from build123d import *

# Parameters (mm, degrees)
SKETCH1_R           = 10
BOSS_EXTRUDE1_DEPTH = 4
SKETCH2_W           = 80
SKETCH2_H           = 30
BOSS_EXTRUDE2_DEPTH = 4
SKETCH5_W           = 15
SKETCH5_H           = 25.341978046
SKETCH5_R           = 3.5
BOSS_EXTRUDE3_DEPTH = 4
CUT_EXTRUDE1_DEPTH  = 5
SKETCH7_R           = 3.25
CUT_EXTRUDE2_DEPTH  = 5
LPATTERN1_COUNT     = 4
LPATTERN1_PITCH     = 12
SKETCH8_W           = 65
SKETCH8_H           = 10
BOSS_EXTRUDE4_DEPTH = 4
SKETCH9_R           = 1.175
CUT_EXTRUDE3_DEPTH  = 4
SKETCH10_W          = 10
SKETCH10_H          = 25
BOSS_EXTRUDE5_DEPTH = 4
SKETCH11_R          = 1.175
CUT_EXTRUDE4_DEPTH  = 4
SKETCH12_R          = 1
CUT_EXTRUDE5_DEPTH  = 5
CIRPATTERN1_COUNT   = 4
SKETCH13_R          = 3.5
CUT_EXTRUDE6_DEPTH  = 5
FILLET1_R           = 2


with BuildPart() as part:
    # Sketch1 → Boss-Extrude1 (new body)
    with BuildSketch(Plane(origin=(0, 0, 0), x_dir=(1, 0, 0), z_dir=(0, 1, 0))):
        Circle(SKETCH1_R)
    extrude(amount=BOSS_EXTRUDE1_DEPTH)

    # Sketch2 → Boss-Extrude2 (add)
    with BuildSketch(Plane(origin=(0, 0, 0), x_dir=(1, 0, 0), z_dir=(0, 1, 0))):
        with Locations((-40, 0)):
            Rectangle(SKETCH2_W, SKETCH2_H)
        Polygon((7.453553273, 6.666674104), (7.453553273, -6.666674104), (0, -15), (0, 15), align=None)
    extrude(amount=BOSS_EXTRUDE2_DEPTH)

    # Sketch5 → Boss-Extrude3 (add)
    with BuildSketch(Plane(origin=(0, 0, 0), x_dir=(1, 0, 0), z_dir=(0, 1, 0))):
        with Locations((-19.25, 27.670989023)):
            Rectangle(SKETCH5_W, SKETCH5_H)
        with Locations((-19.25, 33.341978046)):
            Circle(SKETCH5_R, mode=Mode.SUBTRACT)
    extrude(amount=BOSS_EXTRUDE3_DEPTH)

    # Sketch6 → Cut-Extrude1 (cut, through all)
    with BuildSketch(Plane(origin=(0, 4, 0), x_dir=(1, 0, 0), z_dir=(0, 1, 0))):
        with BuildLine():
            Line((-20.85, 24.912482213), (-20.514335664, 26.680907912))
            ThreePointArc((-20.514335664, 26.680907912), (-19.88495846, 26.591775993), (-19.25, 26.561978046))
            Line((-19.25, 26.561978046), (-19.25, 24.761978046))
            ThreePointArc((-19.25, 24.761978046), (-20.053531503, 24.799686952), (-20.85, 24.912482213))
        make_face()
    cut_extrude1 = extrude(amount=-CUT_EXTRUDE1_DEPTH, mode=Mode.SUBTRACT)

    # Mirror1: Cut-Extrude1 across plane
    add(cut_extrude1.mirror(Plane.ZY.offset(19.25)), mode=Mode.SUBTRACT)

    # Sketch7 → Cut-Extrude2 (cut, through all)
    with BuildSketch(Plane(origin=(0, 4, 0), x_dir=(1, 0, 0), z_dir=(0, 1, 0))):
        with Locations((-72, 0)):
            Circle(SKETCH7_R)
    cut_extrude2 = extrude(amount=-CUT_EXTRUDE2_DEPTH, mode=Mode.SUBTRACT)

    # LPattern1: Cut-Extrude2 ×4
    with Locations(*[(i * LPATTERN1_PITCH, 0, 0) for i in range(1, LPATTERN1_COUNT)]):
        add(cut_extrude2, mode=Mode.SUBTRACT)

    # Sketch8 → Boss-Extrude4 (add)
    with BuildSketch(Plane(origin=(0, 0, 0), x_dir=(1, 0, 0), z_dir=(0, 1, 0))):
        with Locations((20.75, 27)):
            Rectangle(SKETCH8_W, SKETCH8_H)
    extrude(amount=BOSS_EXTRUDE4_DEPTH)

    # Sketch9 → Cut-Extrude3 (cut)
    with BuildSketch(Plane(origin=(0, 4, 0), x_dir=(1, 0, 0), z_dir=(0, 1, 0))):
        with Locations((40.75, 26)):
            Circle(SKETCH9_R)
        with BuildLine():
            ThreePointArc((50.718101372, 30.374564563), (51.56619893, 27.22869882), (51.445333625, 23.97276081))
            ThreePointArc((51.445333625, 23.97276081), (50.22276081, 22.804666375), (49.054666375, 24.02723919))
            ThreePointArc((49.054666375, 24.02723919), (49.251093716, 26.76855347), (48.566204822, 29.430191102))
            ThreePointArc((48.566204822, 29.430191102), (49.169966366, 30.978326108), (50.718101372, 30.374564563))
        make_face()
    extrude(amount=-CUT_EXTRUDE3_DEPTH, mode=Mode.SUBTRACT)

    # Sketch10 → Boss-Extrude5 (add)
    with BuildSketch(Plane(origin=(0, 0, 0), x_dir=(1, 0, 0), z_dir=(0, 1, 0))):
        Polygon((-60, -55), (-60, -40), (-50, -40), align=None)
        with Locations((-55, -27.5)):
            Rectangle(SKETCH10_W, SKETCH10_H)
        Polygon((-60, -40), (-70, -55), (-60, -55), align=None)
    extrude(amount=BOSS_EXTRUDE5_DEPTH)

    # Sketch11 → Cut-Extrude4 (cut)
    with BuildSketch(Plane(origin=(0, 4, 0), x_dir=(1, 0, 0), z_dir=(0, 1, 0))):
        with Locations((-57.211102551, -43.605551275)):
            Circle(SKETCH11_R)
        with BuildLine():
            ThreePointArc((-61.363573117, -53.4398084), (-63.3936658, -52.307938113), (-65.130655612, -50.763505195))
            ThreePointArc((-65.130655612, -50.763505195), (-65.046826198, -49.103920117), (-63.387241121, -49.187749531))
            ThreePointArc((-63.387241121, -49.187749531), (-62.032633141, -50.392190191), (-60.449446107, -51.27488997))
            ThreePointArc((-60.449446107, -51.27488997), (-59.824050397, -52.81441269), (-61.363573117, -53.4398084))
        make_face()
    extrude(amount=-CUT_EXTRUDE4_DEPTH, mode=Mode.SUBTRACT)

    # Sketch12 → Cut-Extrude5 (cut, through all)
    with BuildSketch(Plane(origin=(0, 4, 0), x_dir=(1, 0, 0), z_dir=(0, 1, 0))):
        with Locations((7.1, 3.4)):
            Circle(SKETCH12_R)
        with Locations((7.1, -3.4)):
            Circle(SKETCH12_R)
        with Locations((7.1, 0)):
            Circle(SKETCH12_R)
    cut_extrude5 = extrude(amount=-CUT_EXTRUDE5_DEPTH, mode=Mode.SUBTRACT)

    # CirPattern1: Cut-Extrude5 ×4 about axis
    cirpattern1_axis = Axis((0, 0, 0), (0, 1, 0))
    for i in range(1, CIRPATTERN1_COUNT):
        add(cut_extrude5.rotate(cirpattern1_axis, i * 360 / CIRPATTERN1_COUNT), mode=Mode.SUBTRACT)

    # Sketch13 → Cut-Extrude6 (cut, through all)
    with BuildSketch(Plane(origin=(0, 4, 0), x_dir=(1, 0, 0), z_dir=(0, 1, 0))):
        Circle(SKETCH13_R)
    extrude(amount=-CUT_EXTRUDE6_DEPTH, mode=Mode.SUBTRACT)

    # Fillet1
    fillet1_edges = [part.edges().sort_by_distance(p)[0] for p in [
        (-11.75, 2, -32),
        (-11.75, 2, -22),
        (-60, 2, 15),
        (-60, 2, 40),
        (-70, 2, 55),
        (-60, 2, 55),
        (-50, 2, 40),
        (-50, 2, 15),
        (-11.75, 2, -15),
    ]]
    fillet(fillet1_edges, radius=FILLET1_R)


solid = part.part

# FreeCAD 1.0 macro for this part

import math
import FreeCAD as App
import Part
import Sketcher
Q = App.Units.Quantity


def edges_at(feature, points):
    """Names of the edges that pass closest to the given points."""
    edges = feature.Shape.Edges
    near = lambda p: min(range(len(edges)), key=lambda i: edges[i].distToShape(Part.Vertex(*p))[0])
    return sorted({f"Edge{near(p) + 1}" for p in points})

doc = App.newDocument("Part")
params = doc.addObject("Spreadsheet::Sheet", "Params")
for row, (alias, value) in enumerate([
    ("sketch1_diameter", "20 mm"),
    ("pad1_length", "4 mm"),
    ("sketch2_width", "80 mm"),
    ("sketch2_height", "30 mm"),
    ("pad2_length", "4 mm"),
    ("sketch3_diameter", "7 mm"),
    ("sketch3_width", "15 mm"),
    ("pad3_length", "4 mm"),
    ("sketch4_radius", "8.58 mm"),
    ("sketch4_radius2", "6.78 mm"),
    ("sketch5_diameter", "6.5 mm"),
    ("linearpattern_pitch", "12 mm"),
    ("sketch6_width", "65 mm"),
    ("sketch6_height", "10 mm"),
    ("pad4_length", "4 mm"),
    ("sketch7_diameter", "2.35 mm"),
    ("pocket3_length", "4 mm"),
    ("sketch8_width", "10 mm"),
    ("sketch8_height", "25 mm"),
    ("pad5_length", "4 mm"),
    ("sketch9_diameter", "2.35 mm"),
    ("pocket4_length", "4 mm"),
    ("sketch10_diameter", "2 mm"),
    ("sketch11_diameter", "7 mm"),
    ("fillet_radius", "2 mm"),
], start=1):
    params.set(f"A{row}", alias)
    params.set(f"B{row}", "=" + value)
    params.setAlias(f"B{row}", alias)

body = doc.addObject("PartDesign::Body", "Body")

# Sketch on XZ plane
sketch1 = body.newObject("Sketcher::SketchObject", "Sketch")
sketch1.AttachmentSupport = (doc.getObject("XZ_Plane"), [""])
sketch1.MapMode = "FlatFace"
sketch1.addGeometry(Part.Circle(App.Vector(0, 0, 0), App.Vector(0, 0, 1), 10), False)
sketch1.addConstraint([
    Sketcher.Constraint("Coincident", 0, 3, -1, 1),
    Sketcher.Constraint("Diameter", 0, Q("20 mm")),
])
sketch1.setExpression("Constraints[1]", "Params.sketch1_diameter")
pad1 = body.newObject("PartDesign::Pad", "Pad")
pad1.Profile = sketch1
pad1.setExpression("Length", "Params.pad1_length")
pad1.Reversed = True

# Sketch on XZ plane
sketch2 = body.newObject("Sketcher::SketchObject", "Sketch001")
sketch2.AttachmentSupport = (doc.getObject("XZ_Plane"), [""])
sketch2.MapMode = "FlatFace"
sketch2.addGeometry([
    Part.LineSegment(App.Vector(-80, -15, 0), App.Vector(-80, 15, 0)),  # 0
    Part.LineSegment(App.Vector(-80, 15, 0), App.Vector(0, 15, 0)),  # 1
    Part.LineSegment(App.Vector(0, 15, 0), App.Vector(7, 7, 0)),  # 2
    Part.LineSegment(App.Vector(7, 7, 0), App.Vector(7, -7, 0)),  # 3
    Part.LineSegment(App.Vector(7, -7, 0), App.Vector(0, -15, 0)),  # 4
    Part.LineSegment(App.Vector(0, -15, 0), App.Vector(-80, -15, 0)),  # 5
], False)
sketch2.addConstraint([
    Sketcher.Constraint("Coincident", 0, 2, 1, 1),
    Sketcher.Constraint("Coincident", 1, 2, 2, 1),
    Sketcher.Constraint("Coincident", 2, 2, 3, 1),
    Sketcher.Constraint("Coincident", 3, 2, 4, 1),
    Sketcher.Constraint("Coincident", 4, 2, 5, 1),
    Sketcher.Constraint("Coincident", 5, 2, 0, 1),
    Sketcher.Constraint("Vertical", 0),
    Sketcher.Constraint("Horizontal", 1),
    Sketcher.Constraint("Vertical", 3),
    Sketcher.Constraint("Horizontal", 5),
    Sketcher.Constraint("Symmetric", 1, 2, 4, 2, -1, 1),
    Sketcher.Constraint("PointOnObject", 1, 2, -2),
    Sketcher.Constraint("Equal", 2, 4),
    Sketcher.Constraint("DistanceX", 1, 1, 1, 2, Q("80 mm")),
    Sketcher.Constraint("DistanceY", 0, 1, 0, 2, Q("30 mm")),
    Sketcher.Constraint("DistanceY", 3, 2, 3, 1, Q("13.333348 mm")),
    Sketcher.Constraint("Distance", 2, Q("11.18033 mm")),
])
sketch2.setExpression("Constraints[13]", "Params.sketch2_width")
sketch2.setExpression("Constraints[14]", "Params.sketch2_height")
pad2 = body.newObject("PartDesign::Pad", "Pad001")
pad2.Profile = sketch2
pad2.setExpression("Length", "Params.pad2_length")
pad2.Reversed = True

# Sketch on XZ plane
sketch3 = body.newObject("Sketcher::SketchObject", "Sketch002")
sketch3.AttachmentSupport = (doc.getObject("XZ_Plane"), [""])
sketch3.MapMode = "FlatFace"
sketch3.addGeometry([
    Part.LineSegment(App.Vector(-26.8, -40.3, 0), App.Vector(-26.8, -15, 0)),  # 0
    Part.LineSegment(App.Vector(-26.8, -15, 0), App.Vector(-11.8, -15, 0)),  # 1
    Part.LineSegment(App.Vector(-11.8, -15, 0), App.Vector(-11.8, -40.3, 0)),  # 2
    Part.LineSegment(App.Vector(-11.8, -40.3, 0), App.Vector(-26.8, -40.3, 0)),  # 3
    Part.Circle(App.Vector(-19.2, -33.3, 0), App.Vector(0, 0, 1), 3.5),  # 4
], False)
sketch3.addConstraint([
    Sketcher.Constraint("Coincident", 0, 2, 1, 1),
    Sketcher.Constraint("Coincident", 1, 2, 2, 1),
    Sketcher.Constraint("Coincident", 2, 2, 3, 1),
    Sketcher.Constraint("Coincident", 3, 2, 0, 1),
    Sketcher.Constraint("Vertical", 0),
    Sketcher.Constraint("Horizontal", 1),
    Sketcher.Constraint("Vertical", 2),
    Sketcher.Constraint("Horizontal", 3),
    Sketcher.Constraint("Diameter", 4, Q("7 mm")),
    Sketcher.Constraint("DistanceX", 1, 1, 1, 2, Q("15 mm")),
    Sketcher.Constraint("DistanceY", 0, 2, -1, 1, Q("15 mm")),
    Sketcher.Constraint("DistanceY", 2, 2, 4, 3, Q("7 mm")),
    Sketcher.Constraint("DistanceX", 0, 2, 4, 3, Q("7.5 mm")),
    Sketcher.Constraint("DistanceX", 4, 3, -1, 1, Q("19.25 mm")),
    Sketcher.Constraint("DistanceY", 0, 1, 0, 2, Q("25.341978 mm")),
])
sketch3.setExpression("Constraints[8]", "Params.sketch3_diameter")
sketch3.setExpression("Constraints[9]", "Params.sketch3_width")
pad3 = body.newObject("PartDesign::Pad", "Pad002")
pad3.Profile = sketch3
pad3.setExpression("Length", "Params.pad3_length")
pad3.Reversed = True

# Sketch on XZ plane
sketch4 = body.newObject("Sketcher::SketchObject", "Sketch003")
sketch4.AttachmentSupport = (doc.getObject("XZ_Plane"), [""])
sketch4.MapMode = "FlatFace"
sketch4.AttachmentOffset = App.Placement(App.Vector(0, 0, -4), App.Rotation())
sketch4.addGeometry([
    Part.LineSegment(App.Vector(-20.5, -26.7, 0), App.Vector(-20.9, -24.9, 0)),
    Part.ArcOfCircle(Part.Circle(App.Vector(-19.3, -33.3, 0), App.Vector(0, 0, 1), 8.6), math.radians(90), math.radians(100.75)),
    Part.LineSegment(App.Vector(-19.2, -24.8, 0), App.Vector(-19.2, -26.6, 0)),
    Part.ArcOfCircle(Part.Circle(App.Vector(-19.3, -33.3, 0), App.Vector(0, 0, 1), 6.8), math.radians(90), math.radians(100.75)),
], False)
sketch4.addConstraint([
    Sketcher.Constraint("Coincident", 0, 2, 1, 2),
    Sketcher.Constraint("Coincident", 1, 1, 2, 1),
    Sketcher.Constraint("Coincident", 2, 2, 3, 1),
    Sketcher.Constraint("Coincident", 3, 2, 0, 1),
    Sketcher.Constraint("Vertical", 2),
    Sketcher.Constraint("Coincident", 3, 3, 1, 3),
    Sketcher.Constraint("Vertical", 3, 3, 1, 1),
    Sketcher.Constraint("Radius", 1, Q("8.58 mm")),
    Sketcher.Constraint("Radius", 3, Q("6.78 mm")),
    Sketcher.Constraint("DistanceX", 0, 2, 1, 3, Q("1.6 mm")),
    Sketcher.Constraint("DistanceX", 1, 3, -1, 1, Q("19.25 mm")),
    Sketcher.Constraint("DistanceY", 3, 3, -1, 1, Q("33.341978 mm")),
    Sketcher.Constraint("DistanceY", 3, 2, 2, 2, Q("0.11893 mm")),
])
sketch4.setExpression("Constraints[7]", "Params.sketch4_radius")
sketch4.setExpression("Constraints[8]", "Params.sketch4_radius2")
pocket1 = body.newObject("PartDesign::Pocket", "Pocket")
pocket1.Profile = sketch4
pocket1.Type = "ThroughAll"
pocket1.Reversed = True
doc.recompute()

datumplane = body.newObject("PartDesign::Plane", "DatumPlane")
datumplane.AttachmentSupport = (doc.getObject("YZ_Plane"), [""])
datumplane.MapMode = "FlatFace"
datumplane.AttachmentOffset = App.Placement(App.Vector(0, 0, -19.25), App.Rotation())
mirrored = body.newObject("PartDesign::Mirrored", "Mirrored")
mirrored.Originals = [pocket1]
mirrored.MirrorPlane = (datumplane, [""])
body.Tip = mirrored

# Sketch on XZ plane
sketch5 = body.newObject("Sketcher::SketchObject", "Sketch004")
sketch5.AttachmentSupport = (doc.getObject("XZ_Plane"), [""])
sketch5.MapMode = "FlatFace"
sketch5.AttachmentOffset = App.Placement(App.Vector(0, 0, -4), App.Rotation())
sketch5.addGeometry(Part.Circle(App.Vector(-72, 0, 0), App.Vector(0, 0, 1), 3.2), False)
sketch5.addConstraint([
    Sketcher.Constraint("PointOnObject", 0, 3, -1),
    Sketcher.Constraint("Diameter", 0, Q("6.5 mm")),
    Sketcher.Constraint("DistanceX", 0, 3, -1, 1, Q("72 mm")),
])
sketch5.setExpression("Constraints[1]", "Params.sketch5_diameter")
pocket2 = body.newObject("PartDesign::Pocket", "Pocket001")
pocket2.Profile = sketch5
pocket2.Type = "ThroughAll"
pocket2.Reversed = True
doc.recompute()

linearpattern = body.newObject("PartDesign::LinearPattern", "LinearPattern")
linearpattern.Originals = [pocket2]
linearpattern.Direction = (doc.getObject("X_Axis"), [""])
linearpattern.Mode = "offset"
linearpattern.setExpression("Offset", "Params.linearpattern_pitch")
linearpattern.Occurrences = 4
body.Tip = linearpattern

# Sketch on XZ plane
sketch6 = body.newObject("Sketcher::SketchObject", "Sketch005")
sketch6.AttachmentSupport = (doc.getObject("XZ_Plane"), [""])
sketch6.MapMode = "FlatFace"
sketch6.addGeometry([
    Part.LineSegment(App.Vector(-12, -32, 0), App.Vector(-12, -22, 0)),
    Part.LineSegment(App.Vector(-12, -22, 0), App.Vector(53, -22, 0)),
    Part.LineSegment(App.Vector(53, -22, 0), App.Vector(53, -32, 0)),
    Part.LineSegment(App.Vector(53, -32, 0), App.Vector(-12, -32, 0)),
], False)
sketch6.addConstraint([
    Sketcher.Constraint("Coincident", 0, 2, 1, 1),
    Sketcher.Constraint("Coincident", 1, 2, 2, 1),
    Sketcher.Constraint("Coincident", 2, 2, 3, 1),
    Sketcher.Constraint("Coincident", 3, 2, 0, 1),
    Sketcher.Constraint("Vertical", 0),
    Sketcher.Constraint("Horizontal", 1),
    Sketcher.Constraint("Vertical", 2),
    Sketcher.Constraint("Horizontal", 3),
    Sketcher.Constraint("DistanceX", 1, 1, 1, 2, Q("65 mm")),
    Sketcher.Constraint("DistanceY", 0, 1, 0, 2, Q("10 mm")),
    Sketcher.Constraint("DistanceY", 0, 2, -1, 1, Q("22 mm")),
    Sketcher.Constraint("DistanceX", 0, 2, -1, 1, Q("11.75 mm")),
])
sketch6.setExpression("Constraints[8]", "Params.sketch6_width")
sketch6.setExpression("Constraints[9]", "Params.sketch6_height")
pad4 = body.newObject("PartDesign::Pad", "Pad003")
pad4.Profile = sketch6
pad4.setExpression("Length", "Params.pad4_length")
pad4.Reversed = True

# Sketch on XZ plane
sketch7 = body.newObject("Sketcher::SketchObject", "Sketch006")
sketch7.AttachmentSupport = (doc.getObject("XZ_Plane"), [""])
sketch7.MapMode = "FlatFace"
sketch7.AttachmentOffset = App.Placement(App.Vector(0, 0, -4), App.Rotation())
sketch7.addGeometry([
    Part.Circle(App.Vector(40.8, -26, 0), App.Vector(0, 0, 1), 1.2),  # 0
    Part.ArcOfCircle(Part.Circle(App.Vector(40.8, -26, 0), App.Vector(0, 0, 1), 10.9), math.radians(-24), math.radians(11)),  # 1
    Part.ArcOfCircle(Part.Circle(App.Vector(49.6, -29.9, 0), App.Vector(0, 0, 1), 1.2), math.radians(156), math.radians(336)),  # 2
    Part.ArcOfCircle(Part.Circle(App.Vector(40.7, -26, 0), App.Vector(0, 0, 1), 8.5), math.radians(-24), math.radians(13)),  # 3
    Part.ArcOfCircle(Part.Circle(App.Vector(50.2, -24, 0), App.Vector(0, 0, 1), 1.2), math.radians(1), math.radians(181)),  # 4
], False)
sketch7.addConstraint([
    Sketcher.Constraint("Tangent", 1, 1, 2, 2),
    Sketcher.Constraint("Tangent", 2, 1, 3, 1),
    Sketcher.Constraint("Coincident", 3, 2, 4, 2),
    Sketcher.Constraint("Coincident", 4, 1, 1, 2),
    Sketcher.Constraint("Coincident", 1, 3, 0, 3),
    Sketcher.Constraint("Coincident", 3, 3, 0, 3),
    Sketcher.Constraint("Equal", 0, 2),
    Sketcher.Constraint("Diameter", 0, Q("2.35 mm")),
    Sketcher.Constraint("DistanceY", 0, 3, -1, 1, Q("26 mm")),
    Sketcher.Constraint("DistanceY", 4, 3, -1, 1, Q("24 mm")),
    Sketcher.Constraint("DistanceX", 1, 3, 4, 3, Q("9.5 mm")),
    Sketcher.Constraint("DistanceX", -1, 1, 0, 3, Q("40.75 mm")),
    Sketcher.Constraint("Radius", 1, Q("10.885764 mm")),
    Sketcher.Constraint("Radius", 4, Q("1.195644 mm")),
    Sketcher.Constraint("DistanceX", -1, 1, 1, 1, Q("50.718101 mm")),
])
sketch7.setExpression("Constraints[7]", "Params.sketch7_diameter")
pocket3 = body.newObject("PartDesign::Pocket", "Pocket002")
pocket3.Profile = sketch7
pocket3.setExpression("Length", "Params.pocket3_length")
pocket3.Reversed = True

# Sketch on XZ plane
sketch8 = body.newObject("Sketcher::SketchObject", "Sketch007")
sketch8.AttachmentSupport = (doc.getObject("XZ_Plane"), [""])
sketch8.MapMode = "FlatFace"
sketch8.addGeometry([
    Part.LineSegment(App.Vector(-60, 15, 0), App.Vector(-60, 40, 0)),  # 0
    Part.LineSegment(App.Vector(-60, 40, 0), App.Vector(-70, 55, 0)),  # 1
    Part.LineSegment(App.Vector(-70, 55, 0), App.Vector(-60, 55, 0)),  # 2
    Part.LineSegment(App.Vector(-60, 55, 0), App.Vector(-50, 40, 0)),  # 3
    Part.LineSegment(App.Vector(-50, 40, 0), App.Vector(-50, 15, 0)),  # 4
    Part.LineSegment(App.Vector(-50, 15, 0), App.Vector(-60, 15, 0)),  # 5
], False)
sketch8.addConstraint([
    Sketcher.Constraint("Coincident", 0, 2, 1, 1),
    Sketcher.Constraint("Coincident", 1, 2, 2, 1),
    Sketcher.Constraint("Coincident", 2, 2, 3, 1),
    Sketcher.Constraint("Coincident", 3, 2, 4, 1),
    Sketcher.Constraint("Coincident", 4, 2, 5, 1),
    Sketcher.Constraint("Coincident", 5, 2, 0, 1),
    Sketcher.Constraint("Vertical", 0),
    Sketcher.Constraint("Horizontal", 2),
    Sketcher.Constraint("Vertical", 4),
    Sketcher.Constraint("Horizontal", 5),
    Sketcher.Constraint("Parallel", 1, 3),
    Sketcher.Constraint("Horizontal", 0, 2, 3, 2),
    Sketcher.Constraint("Vertical", 0, 2, 2, 2),
    Sketcher.Constraint("DistanceX", 2, 1, 2, 2, Q("10 mm")),
    Sketcher.Constraint("DistanceY", 0, 1, 0, 2, Q("25 mm")),
    Sketcher.Constraint("DistanceX", 0, 2, -1, 1, Q("60 mm")),
    Sketcher.Constraint("DistanceY", -1, 1, 0, 2, Q("40 mm")),
    Sketcher.Constraint("DistanceY", -1, 1, 1, 2, Q("55 mm")),
])
sketch8.setExpression("Constraints[13]", "Params.sketch8_width")
sketch8.setExpression("Constraints[14]", "Params.sketch8_height")
pad5 = body.newObject("PartDesign::Pad", "Pad004")
pad5.Profile = sketch8
pad5.setExpression("Length", "Params.pad5_length")
pad5.Reversed = True

# Sketch on XZ plane
sketch9 = body.newObject("Sketcher::SketchObject", "Sketch008")
sketch9.AttachmentSupport = (doc.getObject("XZ_Plane"), [""])
sketch9.MapMode = "FlatFace"
sketch9.AttachmentOffset = App.Placement(App.Vector(0, 0, -4), App.Rotation())
sketch9.addGeometry([
    Part.Circle(App.Vector(-57.2, 43.6, 0), App.Vector(0, 0, 1), 1.2),  # 0
    Part.ArcOfCircle(Part.Circle(App.Vector(-57.2, 43.6, 0), App.Vector(0, 0, 1), 10.7), math.radians(113), math.radians(138)),  # 1
    Part.ArcOfCircle(Part.Circle(App.Vector(-60.9, 52.4, 0), App.Vector(0, 0, 1), 1.2), math.radians(-67), math.radians(113)),  # 2
    Part.ArcOfCircle(Part.Circle(App.Vector(-57.2, 43.6, 0), App.Vector(0, 0, 1), 8.3), math.radians(113), math.radians(138)),  # 3
    Part.ArcOfCircle(Part.Circle(App.Vector(-64.3, 50, 0), App.Vector(0, 0, 1), 1.2), math.radians(138), math.radians(318)),  # 4
], False)
sketch9.addConstraint([
    Sketcher.Constraint("Tangent", 1, 1, 2, 2),
    Sketcher.Constraint("Tangent", 2, 1, 3, 1),
    Sketcher.Constraint("Tangent", 3, 2, 4, 2),
    Sketcher.Constraint("Tangent", 4, 1, 1, 2),
    Sketcher.Constraint("Coincident", 1, 3, 0, 3),
    Sketcher.Constraint("Coincident", 3, 3, 0, 3),
    Sketcher.Constraint("Equal", 0, 2),
    Sketcher.Constraint("Diameter", 0, Q("2.35 mm")),
    Sketcher.Constraint("Radius", 1, Q("10.675 mm")),
    Sketcher.Constraint("DistanceY", 3, 2, 2, 3, Q("3.1696 mm")),
    Sketcher.Constraint("DistanceY", 3, 3, 3, 2, Q("5.582198 mm")),
    Sketcher.Constraint("DistanceY", -1, 1, 0, 3, Q("43.605551 mm")),
    Sketcher.Constraint("DistanceX", 2, 3, -1, 1, Q("60.90651 mm")),
])
sketch9.setExpression("Constraints[7]", "Params.sketch9_diameter")
pocket4 = body.newObject("PartDesign::Pocket", "Pocket003")
pocket4.Profile = sketch9
pocket4.setExpression("Length", "Params.pocket4_length")
pocket4.Reversed = True

# Sketch on XZ plane
sketch10 = body.newObject("Sketcher::SketchObject", "Sketch009")
sketch10.AttachmentSupport = (doc.getObject("XZ_Plane"), [""])
sketch10.MapMode = "FlatFace"
sketch10.AttachmentOffset = App.Placement(App.Vector(0, 0, -4), App.Rotation())
sketch10.addGeometry([
    Part.Circle(App.Vector(7.1, -3.4, 0), App.Vector(0, 0, 1), 1),
    Part.Circle(App.Vector(7.1, 3.4, 0), App.Vector(0, 0, 1), 1),
    Part.Circle(App.Vector(7.1, 0, 0), App.Vector(0, 0, 1), 1),
], False)
sketch10.addConstraint([
    Sketcher.Constraint("Equal", 0, 1),
    Sketcher.Constraint("Equal", 1, 2),
    Sketcher.Constraint("Symmetric", 0, 3, 1, 3, -1),
    Sketcher.Constraint("PointOnObject", 2, 3, -1),
    Sketcher.Constraint("Vertical", 1, 3, 2, 3),
    Sketcher.Constraint("Diameter", 0, Q("2 mm")),
    Sketcher.Constraint("DistanceX", -1, 1, 0, 3, Q("7.1 mm")),
    Sketcher.Constraint("DistanceY", 0, 3, -1, 1, Q("3.4 mm")),
])
sketch10.setExpression("Constraints[5]", "Params.sketch10_diameter")
pocket5 = body.newObject("PartDesign::Pocket", "Pocket004")
pocket5.Profile = sketch10
pocket5.Type = "ThroughAll"
pocket5.Reversed = True
doc.recompute()

polarpattern = body.newObject("PartDesign::PolarPattern", "PolarPattern")
polarpattern.Originals = [pocket5]
polarpattern.Axis = (doc.getObject("Y_Axis"), [""])
polarpattern.Angle = 360
polarpattern.Occurrences = 4
body.Tip = polarpattern

# Sketch on XZ plane
sketch11 = body.newObject("Sketcher::SketchObject", "Sketch010")
sketch11.AttachmentSupport = (doc.getObject("XZ_Plane"), [""])
sketch11.MapMode = "FlatFace"
sketch11.AttachmentOffset = App.Placement(App.Vector(0, 0, -4), App.Rotation())
sketch11.addGeometry(Part.Circle(App.Vector(0, 0, 0), App.Vector(0, 0, 1), 3.5), False)
sketch11.addConstraint([
    Sketcher.Constraint("Coincident", 0, 3, -1, 1),
    Sketcher.Constraint("Diameter", 0, Q("7 mm")),
])
sketch11.setExpression("Constraints[1]", "Params.sketch11_diameter")
pocket6 = body.newObject("PartDesign::Pocket", "Pocket005")
pocket6.Profile = sketch11
pocket6.Type = "ThroughAll"
pocket6.Reversed = True
doc.recompute()

fillet = body.newObject("PartDesign::Fillet", "Fillet")
fillet.Base = (pocket6, edges_at(pocket6, [
    (-11.75, 2, -32),
    (-11.75, 2, -22),
    (-60, 2, 15),
    (-60, 2, 40),
    (-70, 2, 55),
    (-60, 2, 55),
    (-50, 2, 40),
    (-50, 2, 15),
    (-11.75, 2, -15),
]))
fillet.setExpression("Radius", "Params.fillet_radius")

doc.recompute()
